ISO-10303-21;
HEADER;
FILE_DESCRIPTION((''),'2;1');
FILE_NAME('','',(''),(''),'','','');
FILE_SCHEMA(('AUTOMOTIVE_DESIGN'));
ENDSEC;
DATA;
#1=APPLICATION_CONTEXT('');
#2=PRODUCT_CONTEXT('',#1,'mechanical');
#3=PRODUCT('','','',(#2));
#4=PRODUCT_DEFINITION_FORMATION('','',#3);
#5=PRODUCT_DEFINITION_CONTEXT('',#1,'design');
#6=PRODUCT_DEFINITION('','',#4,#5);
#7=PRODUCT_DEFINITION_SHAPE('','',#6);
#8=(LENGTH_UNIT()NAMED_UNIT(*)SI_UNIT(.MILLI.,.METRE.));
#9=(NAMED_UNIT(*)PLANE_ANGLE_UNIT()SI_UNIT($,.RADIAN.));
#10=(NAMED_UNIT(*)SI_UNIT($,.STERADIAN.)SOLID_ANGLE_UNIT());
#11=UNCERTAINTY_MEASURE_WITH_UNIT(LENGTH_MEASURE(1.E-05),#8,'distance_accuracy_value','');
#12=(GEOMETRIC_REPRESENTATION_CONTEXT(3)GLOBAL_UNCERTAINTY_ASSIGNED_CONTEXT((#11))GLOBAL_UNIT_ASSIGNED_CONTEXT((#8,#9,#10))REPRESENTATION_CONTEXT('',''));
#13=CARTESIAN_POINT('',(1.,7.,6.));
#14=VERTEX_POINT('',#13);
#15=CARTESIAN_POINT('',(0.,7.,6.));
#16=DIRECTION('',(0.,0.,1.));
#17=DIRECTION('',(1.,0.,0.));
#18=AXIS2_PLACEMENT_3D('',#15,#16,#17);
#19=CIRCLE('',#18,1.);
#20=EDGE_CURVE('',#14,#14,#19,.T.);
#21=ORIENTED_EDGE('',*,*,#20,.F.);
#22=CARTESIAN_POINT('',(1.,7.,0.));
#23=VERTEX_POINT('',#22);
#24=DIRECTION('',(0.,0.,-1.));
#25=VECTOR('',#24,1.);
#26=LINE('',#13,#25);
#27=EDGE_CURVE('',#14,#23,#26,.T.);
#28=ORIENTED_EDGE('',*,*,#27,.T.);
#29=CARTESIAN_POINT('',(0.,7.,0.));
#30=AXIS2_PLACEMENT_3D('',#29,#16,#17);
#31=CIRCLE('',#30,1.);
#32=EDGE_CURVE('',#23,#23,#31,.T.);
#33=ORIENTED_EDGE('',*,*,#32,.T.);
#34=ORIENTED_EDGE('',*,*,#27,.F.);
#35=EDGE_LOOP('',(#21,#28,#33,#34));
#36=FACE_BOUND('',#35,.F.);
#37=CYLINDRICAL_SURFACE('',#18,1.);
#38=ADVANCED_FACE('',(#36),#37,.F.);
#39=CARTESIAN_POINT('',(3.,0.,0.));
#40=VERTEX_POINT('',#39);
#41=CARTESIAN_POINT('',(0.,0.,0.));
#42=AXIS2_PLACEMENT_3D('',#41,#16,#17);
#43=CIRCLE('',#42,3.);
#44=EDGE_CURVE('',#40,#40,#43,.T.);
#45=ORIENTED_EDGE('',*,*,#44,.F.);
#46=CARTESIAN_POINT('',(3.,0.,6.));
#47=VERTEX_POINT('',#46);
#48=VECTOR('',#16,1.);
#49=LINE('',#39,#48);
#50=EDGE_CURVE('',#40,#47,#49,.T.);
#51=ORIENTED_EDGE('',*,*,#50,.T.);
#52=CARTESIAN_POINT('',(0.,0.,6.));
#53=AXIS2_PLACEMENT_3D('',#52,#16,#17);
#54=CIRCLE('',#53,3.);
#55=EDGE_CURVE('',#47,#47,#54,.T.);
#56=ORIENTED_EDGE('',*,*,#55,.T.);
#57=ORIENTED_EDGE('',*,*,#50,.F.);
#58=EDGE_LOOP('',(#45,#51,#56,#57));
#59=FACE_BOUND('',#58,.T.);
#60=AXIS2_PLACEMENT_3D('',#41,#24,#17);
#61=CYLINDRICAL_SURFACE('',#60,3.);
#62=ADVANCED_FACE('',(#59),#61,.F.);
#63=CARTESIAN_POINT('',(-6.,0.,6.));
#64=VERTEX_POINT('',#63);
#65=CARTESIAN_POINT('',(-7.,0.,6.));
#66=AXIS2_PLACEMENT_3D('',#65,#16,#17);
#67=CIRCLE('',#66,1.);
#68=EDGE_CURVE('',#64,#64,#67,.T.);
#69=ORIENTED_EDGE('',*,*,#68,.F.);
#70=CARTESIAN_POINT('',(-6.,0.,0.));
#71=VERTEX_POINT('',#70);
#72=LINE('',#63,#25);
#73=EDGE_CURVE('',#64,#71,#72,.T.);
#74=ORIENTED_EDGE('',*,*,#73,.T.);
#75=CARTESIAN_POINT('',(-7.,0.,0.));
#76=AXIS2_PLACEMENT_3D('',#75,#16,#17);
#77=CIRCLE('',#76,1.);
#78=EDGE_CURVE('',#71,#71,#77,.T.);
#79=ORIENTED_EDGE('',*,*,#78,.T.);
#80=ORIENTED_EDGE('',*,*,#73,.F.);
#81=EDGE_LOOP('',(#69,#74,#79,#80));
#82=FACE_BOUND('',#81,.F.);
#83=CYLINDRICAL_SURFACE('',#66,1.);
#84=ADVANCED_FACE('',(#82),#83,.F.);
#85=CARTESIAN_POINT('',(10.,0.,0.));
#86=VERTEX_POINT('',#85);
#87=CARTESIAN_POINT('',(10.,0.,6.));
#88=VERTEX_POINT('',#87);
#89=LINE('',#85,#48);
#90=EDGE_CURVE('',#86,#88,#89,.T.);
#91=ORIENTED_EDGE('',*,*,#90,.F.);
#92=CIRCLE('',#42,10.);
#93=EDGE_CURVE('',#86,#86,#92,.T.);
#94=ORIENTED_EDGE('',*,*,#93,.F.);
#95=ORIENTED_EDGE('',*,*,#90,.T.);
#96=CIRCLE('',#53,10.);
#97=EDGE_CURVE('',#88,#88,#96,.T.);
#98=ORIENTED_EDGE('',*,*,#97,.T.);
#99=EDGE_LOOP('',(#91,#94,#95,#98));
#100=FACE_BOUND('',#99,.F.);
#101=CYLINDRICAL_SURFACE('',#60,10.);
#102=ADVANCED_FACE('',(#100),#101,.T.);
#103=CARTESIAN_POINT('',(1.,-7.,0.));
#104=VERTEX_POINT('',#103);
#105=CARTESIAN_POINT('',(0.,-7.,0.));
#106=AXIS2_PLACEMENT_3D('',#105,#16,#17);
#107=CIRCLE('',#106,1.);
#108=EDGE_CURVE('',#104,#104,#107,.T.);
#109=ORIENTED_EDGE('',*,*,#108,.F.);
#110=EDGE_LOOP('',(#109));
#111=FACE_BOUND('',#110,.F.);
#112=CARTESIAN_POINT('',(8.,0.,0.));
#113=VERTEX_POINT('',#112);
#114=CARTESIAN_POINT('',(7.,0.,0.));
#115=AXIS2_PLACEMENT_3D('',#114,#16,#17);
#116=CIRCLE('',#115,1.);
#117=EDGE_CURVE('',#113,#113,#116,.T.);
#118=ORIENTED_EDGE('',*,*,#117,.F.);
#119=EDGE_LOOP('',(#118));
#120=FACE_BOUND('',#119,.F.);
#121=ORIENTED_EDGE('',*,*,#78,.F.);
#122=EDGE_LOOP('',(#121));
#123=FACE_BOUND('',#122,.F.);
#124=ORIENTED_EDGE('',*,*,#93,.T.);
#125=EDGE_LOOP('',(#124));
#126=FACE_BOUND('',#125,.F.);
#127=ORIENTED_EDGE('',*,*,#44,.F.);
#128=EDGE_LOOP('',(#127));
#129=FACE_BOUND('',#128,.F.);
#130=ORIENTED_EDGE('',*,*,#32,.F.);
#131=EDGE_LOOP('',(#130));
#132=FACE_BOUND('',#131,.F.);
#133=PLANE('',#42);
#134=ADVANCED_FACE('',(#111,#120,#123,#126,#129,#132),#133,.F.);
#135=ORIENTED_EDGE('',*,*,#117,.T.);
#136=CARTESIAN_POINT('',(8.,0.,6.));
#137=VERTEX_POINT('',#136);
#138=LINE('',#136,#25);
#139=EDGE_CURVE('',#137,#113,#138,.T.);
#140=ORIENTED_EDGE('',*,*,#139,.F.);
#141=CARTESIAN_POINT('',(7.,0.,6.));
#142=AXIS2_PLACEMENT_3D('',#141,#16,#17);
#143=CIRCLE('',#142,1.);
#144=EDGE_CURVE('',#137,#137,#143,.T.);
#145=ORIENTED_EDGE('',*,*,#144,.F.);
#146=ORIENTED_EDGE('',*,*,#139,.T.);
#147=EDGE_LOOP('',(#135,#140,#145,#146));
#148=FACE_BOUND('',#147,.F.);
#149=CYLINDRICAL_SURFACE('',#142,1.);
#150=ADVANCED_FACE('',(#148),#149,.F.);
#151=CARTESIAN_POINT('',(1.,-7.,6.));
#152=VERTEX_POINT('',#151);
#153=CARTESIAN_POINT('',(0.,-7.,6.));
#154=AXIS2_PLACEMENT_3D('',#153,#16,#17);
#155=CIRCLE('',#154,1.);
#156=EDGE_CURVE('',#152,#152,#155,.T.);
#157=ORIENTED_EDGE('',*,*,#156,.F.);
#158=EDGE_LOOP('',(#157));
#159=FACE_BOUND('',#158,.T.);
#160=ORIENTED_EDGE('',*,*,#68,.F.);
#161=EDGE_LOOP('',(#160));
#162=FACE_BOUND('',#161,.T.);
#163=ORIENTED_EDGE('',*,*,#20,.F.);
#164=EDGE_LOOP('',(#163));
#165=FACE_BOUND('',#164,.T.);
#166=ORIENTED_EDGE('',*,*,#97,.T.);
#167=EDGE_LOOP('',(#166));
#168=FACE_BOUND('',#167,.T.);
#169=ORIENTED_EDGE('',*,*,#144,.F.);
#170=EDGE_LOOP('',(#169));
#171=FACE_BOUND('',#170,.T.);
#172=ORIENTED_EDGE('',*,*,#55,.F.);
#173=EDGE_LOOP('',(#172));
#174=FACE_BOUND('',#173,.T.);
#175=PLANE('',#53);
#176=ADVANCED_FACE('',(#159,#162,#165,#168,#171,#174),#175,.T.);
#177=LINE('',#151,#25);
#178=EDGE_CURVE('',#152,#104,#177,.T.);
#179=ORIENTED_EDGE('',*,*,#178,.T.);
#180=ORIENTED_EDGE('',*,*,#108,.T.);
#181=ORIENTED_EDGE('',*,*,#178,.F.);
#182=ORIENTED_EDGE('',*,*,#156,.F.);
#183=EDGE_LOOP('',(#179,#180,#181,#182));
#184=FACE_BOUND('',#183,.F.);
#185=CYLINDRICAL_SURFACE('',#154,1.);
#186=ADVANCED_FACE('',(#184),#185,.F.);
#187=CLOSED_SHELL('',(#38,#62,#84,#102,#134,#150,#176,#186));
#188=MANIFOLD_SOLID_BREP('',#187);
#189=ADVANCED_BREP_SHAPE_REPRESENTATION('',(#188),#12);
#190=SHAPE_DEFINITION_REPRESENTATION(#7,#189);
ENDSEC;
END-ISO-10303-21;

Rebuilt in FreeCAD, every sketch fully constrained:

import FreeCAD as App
import Part
import Sketcher
from FreeCAD import Vector
Q = App.Units.Quantity

doc = App.newDocument("Part")
body = doc.addObject("PartDesign::Body", "Body")

sketch1 = body.newObject("Sketcher::SketchObject", "Sketch")
sketch1.AttachmentSupport = (doc.getObject("XY_Plane"), [""])
sketch1.MapMode = "FlatFace"
sketch1.addGeometry(Part.Circle(Vector(0, 0, 0), Vector(0, 0, 1), 10), False)
sketch1.addGeometry(Part.Circle(Vector(0, 0, 0), Vector(0, 0, 1), 3), False)
sketch1.addConstraint(Sketcher.Constraint("Coincident", 0, 3, -1, 1))
sketch1.addConstraint(Sketcher.Constraint("Coincident", 1, 3, -1, 1))
sketch1.addConstraint(Sketcher.Constraint("Diameter", 0, Q("20 mm")))
sketch1.addConstraint(Sketcher.Constraint("Diameter", 1, Q("6 mm")))
pad1 = body.newObject("PartDesign::Pad", "Pad")
pad1.Profile = sketch1
pad1.Length = 6

sketch2 = body.newObject("Sketcher::SketchObject", "Sketch001")
sketch2.AttachmentSupport = (doc.getObject("XY_Plane"), [""])
sketch2.MapMode = "FlatFace"
sketch2.AttachmentOffset = App.Placement(Vector(0, 0, 6), App.Rotation())
sketch2.addGeometry(Part.Circle(Vector(-7, 0, 0), Vector(0, 0, 1), 1), False)
sketch2.addGeometry(Part.Circle(Vector(0, -7, 0), Vector(0, 0, 1), 1), False)
sketch2.addGeometry(Part.Circle(Vector(7, 0, 0), Vector(0, 0, 1), 1), False)
sketch2.addGeometry(Part.Circle(Vector(0, 7, 0), Vector(0, 0, 1), 1), False)
sketch2.addConstraint(Sketcher.Constraint("Equal", 0, 1))
sketch2.addConstraint(Sketcher.Constraint("Equal", 1, 2))
sketch2.addConstraint(Sketcher.Constraint("Equal", 2, 3))
sketch2.addConstraint(Sketcher.Constraint("Symmetric", 0, 3, 2, 3, -1, 1))
sketch2.addConstraint(Sketcher.Constraint("Symmetric", 1, 3, 3, 3, -1, 1))
sketch2.addConstraint(Sketcher.Constraint("PointOnObject", 0, 3, -1))
sketch2.addConstraint(Sketcher.Constraint("PointOnObject", 1, 3, -2))
sketch2.addConstraint(Sketcher.Constraint("Diameter", 0, Q("2 mm")))
sketch2.addConstraint(Sketcher.Constraint("DistanceX", 0, 3, 2, 3, Q("14 mm")))
sketch2.addConstraint(Sketcher.Constraint("DistanceY", 1, 3, 3, 3, Q("14 mm")))
pocket1 = body.newObject("PartDesign::Pocket", "Pocket")
pocket1.Profile = sketch2
pocket1.Length = 10

doc.recompute()
